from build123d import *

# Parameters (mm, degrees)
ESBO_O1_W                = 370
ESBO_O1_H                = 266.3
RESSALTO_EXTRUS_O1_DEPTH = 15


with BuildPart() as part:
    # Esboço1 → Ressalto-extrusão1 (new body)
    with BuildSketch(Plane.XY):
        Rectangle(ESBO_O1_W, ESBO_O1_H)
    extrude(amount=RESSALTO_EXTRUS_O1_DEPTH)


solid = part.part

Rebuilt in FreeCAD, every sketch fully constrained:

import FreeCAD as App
import Part
import Sketcher
from FreeCAD import Vector


def add_polygon(sketch, points):
    """Adds a closed chain of lines whose ends are joined by coincident constraints."""
    first, n = sketch.GeometryCount, len(points)
    for a, b in zip(points, points[1:] + points[:1]):
        sketch.addGeometry(Part.LineSegment(App.Vector(*a, 0), App.Vector(*b, 0)), False)
    for i in range(n):
        sketch.addConstraint(Sketcher.Constraint("Coincident", first + i, 2, first + (i + 1) % n, 1))

doc = App.newDocument("Part")
params = doc.addObject("Spreadsheet::Sheet", "Params")
for row, (alias, value) in enumerate([
    ("sketch1_width", "370 mm"),
    ("sketch1_height", "266.3 mm"),
    ("pad1_length", "15 mm"),
], start=1):
    params.set(f"A{row}", alias)
    params.set(f"B{row}", "=" + value)
    params.setAlias(f"B{row}", alias)

body = doc.addObject("PartDesign::Body", "Body")

# Sketch on XY plane
sketch1 = doc.addObject("Sketcher::SketchObject", "Sketch")
body.addObject(sketch1)
sketch1.AttachmentSupport = (doc.XY_Plane, [""])
sketch1.MapMode = "FlatFace"
add_polygon(sketch1, [(-185, 133.15), (-185, -133.15), (185, -133.15), (185, 133.15)])  # lines 0-3
sketch1.addConstraint(Sketcher.Constraint("Vertical", 0))
sketch1.addConstraint(Sketcher.Constraint("Horizontal", 1))
sketch1.addConstraint(Sketcher.Constraint("Vertical", 2))
sketch1.addConstraint(Sketcher.Constraint("Horizontal", 3))
sketch1.addConstraint(Sketcher.Constraint("Symmetric", 0, 2, 2, 2, -1, 1))
sketch1.addConstraint(Sketcher.Constraint("DistanceX", 1, 1, 1, 2, 370.0))
sketch1.addConstraint(Sketcher.Constraint("DistanceY", 0, 2, 0, 1, 266.3))
sketch1.setExpression("Constraints[9]", "Params.sketch1_width")
sketch1.setExpression("Constraints[10]", "Params.sketch1_height")
pad1 = doc.addObject("PartDesign::Pad", "Pad")
body.addObject(pad1)
pad1.Profile = sketch1
pad1.setExpression("Length", "Params.pad1_length")

doc.recompute()
